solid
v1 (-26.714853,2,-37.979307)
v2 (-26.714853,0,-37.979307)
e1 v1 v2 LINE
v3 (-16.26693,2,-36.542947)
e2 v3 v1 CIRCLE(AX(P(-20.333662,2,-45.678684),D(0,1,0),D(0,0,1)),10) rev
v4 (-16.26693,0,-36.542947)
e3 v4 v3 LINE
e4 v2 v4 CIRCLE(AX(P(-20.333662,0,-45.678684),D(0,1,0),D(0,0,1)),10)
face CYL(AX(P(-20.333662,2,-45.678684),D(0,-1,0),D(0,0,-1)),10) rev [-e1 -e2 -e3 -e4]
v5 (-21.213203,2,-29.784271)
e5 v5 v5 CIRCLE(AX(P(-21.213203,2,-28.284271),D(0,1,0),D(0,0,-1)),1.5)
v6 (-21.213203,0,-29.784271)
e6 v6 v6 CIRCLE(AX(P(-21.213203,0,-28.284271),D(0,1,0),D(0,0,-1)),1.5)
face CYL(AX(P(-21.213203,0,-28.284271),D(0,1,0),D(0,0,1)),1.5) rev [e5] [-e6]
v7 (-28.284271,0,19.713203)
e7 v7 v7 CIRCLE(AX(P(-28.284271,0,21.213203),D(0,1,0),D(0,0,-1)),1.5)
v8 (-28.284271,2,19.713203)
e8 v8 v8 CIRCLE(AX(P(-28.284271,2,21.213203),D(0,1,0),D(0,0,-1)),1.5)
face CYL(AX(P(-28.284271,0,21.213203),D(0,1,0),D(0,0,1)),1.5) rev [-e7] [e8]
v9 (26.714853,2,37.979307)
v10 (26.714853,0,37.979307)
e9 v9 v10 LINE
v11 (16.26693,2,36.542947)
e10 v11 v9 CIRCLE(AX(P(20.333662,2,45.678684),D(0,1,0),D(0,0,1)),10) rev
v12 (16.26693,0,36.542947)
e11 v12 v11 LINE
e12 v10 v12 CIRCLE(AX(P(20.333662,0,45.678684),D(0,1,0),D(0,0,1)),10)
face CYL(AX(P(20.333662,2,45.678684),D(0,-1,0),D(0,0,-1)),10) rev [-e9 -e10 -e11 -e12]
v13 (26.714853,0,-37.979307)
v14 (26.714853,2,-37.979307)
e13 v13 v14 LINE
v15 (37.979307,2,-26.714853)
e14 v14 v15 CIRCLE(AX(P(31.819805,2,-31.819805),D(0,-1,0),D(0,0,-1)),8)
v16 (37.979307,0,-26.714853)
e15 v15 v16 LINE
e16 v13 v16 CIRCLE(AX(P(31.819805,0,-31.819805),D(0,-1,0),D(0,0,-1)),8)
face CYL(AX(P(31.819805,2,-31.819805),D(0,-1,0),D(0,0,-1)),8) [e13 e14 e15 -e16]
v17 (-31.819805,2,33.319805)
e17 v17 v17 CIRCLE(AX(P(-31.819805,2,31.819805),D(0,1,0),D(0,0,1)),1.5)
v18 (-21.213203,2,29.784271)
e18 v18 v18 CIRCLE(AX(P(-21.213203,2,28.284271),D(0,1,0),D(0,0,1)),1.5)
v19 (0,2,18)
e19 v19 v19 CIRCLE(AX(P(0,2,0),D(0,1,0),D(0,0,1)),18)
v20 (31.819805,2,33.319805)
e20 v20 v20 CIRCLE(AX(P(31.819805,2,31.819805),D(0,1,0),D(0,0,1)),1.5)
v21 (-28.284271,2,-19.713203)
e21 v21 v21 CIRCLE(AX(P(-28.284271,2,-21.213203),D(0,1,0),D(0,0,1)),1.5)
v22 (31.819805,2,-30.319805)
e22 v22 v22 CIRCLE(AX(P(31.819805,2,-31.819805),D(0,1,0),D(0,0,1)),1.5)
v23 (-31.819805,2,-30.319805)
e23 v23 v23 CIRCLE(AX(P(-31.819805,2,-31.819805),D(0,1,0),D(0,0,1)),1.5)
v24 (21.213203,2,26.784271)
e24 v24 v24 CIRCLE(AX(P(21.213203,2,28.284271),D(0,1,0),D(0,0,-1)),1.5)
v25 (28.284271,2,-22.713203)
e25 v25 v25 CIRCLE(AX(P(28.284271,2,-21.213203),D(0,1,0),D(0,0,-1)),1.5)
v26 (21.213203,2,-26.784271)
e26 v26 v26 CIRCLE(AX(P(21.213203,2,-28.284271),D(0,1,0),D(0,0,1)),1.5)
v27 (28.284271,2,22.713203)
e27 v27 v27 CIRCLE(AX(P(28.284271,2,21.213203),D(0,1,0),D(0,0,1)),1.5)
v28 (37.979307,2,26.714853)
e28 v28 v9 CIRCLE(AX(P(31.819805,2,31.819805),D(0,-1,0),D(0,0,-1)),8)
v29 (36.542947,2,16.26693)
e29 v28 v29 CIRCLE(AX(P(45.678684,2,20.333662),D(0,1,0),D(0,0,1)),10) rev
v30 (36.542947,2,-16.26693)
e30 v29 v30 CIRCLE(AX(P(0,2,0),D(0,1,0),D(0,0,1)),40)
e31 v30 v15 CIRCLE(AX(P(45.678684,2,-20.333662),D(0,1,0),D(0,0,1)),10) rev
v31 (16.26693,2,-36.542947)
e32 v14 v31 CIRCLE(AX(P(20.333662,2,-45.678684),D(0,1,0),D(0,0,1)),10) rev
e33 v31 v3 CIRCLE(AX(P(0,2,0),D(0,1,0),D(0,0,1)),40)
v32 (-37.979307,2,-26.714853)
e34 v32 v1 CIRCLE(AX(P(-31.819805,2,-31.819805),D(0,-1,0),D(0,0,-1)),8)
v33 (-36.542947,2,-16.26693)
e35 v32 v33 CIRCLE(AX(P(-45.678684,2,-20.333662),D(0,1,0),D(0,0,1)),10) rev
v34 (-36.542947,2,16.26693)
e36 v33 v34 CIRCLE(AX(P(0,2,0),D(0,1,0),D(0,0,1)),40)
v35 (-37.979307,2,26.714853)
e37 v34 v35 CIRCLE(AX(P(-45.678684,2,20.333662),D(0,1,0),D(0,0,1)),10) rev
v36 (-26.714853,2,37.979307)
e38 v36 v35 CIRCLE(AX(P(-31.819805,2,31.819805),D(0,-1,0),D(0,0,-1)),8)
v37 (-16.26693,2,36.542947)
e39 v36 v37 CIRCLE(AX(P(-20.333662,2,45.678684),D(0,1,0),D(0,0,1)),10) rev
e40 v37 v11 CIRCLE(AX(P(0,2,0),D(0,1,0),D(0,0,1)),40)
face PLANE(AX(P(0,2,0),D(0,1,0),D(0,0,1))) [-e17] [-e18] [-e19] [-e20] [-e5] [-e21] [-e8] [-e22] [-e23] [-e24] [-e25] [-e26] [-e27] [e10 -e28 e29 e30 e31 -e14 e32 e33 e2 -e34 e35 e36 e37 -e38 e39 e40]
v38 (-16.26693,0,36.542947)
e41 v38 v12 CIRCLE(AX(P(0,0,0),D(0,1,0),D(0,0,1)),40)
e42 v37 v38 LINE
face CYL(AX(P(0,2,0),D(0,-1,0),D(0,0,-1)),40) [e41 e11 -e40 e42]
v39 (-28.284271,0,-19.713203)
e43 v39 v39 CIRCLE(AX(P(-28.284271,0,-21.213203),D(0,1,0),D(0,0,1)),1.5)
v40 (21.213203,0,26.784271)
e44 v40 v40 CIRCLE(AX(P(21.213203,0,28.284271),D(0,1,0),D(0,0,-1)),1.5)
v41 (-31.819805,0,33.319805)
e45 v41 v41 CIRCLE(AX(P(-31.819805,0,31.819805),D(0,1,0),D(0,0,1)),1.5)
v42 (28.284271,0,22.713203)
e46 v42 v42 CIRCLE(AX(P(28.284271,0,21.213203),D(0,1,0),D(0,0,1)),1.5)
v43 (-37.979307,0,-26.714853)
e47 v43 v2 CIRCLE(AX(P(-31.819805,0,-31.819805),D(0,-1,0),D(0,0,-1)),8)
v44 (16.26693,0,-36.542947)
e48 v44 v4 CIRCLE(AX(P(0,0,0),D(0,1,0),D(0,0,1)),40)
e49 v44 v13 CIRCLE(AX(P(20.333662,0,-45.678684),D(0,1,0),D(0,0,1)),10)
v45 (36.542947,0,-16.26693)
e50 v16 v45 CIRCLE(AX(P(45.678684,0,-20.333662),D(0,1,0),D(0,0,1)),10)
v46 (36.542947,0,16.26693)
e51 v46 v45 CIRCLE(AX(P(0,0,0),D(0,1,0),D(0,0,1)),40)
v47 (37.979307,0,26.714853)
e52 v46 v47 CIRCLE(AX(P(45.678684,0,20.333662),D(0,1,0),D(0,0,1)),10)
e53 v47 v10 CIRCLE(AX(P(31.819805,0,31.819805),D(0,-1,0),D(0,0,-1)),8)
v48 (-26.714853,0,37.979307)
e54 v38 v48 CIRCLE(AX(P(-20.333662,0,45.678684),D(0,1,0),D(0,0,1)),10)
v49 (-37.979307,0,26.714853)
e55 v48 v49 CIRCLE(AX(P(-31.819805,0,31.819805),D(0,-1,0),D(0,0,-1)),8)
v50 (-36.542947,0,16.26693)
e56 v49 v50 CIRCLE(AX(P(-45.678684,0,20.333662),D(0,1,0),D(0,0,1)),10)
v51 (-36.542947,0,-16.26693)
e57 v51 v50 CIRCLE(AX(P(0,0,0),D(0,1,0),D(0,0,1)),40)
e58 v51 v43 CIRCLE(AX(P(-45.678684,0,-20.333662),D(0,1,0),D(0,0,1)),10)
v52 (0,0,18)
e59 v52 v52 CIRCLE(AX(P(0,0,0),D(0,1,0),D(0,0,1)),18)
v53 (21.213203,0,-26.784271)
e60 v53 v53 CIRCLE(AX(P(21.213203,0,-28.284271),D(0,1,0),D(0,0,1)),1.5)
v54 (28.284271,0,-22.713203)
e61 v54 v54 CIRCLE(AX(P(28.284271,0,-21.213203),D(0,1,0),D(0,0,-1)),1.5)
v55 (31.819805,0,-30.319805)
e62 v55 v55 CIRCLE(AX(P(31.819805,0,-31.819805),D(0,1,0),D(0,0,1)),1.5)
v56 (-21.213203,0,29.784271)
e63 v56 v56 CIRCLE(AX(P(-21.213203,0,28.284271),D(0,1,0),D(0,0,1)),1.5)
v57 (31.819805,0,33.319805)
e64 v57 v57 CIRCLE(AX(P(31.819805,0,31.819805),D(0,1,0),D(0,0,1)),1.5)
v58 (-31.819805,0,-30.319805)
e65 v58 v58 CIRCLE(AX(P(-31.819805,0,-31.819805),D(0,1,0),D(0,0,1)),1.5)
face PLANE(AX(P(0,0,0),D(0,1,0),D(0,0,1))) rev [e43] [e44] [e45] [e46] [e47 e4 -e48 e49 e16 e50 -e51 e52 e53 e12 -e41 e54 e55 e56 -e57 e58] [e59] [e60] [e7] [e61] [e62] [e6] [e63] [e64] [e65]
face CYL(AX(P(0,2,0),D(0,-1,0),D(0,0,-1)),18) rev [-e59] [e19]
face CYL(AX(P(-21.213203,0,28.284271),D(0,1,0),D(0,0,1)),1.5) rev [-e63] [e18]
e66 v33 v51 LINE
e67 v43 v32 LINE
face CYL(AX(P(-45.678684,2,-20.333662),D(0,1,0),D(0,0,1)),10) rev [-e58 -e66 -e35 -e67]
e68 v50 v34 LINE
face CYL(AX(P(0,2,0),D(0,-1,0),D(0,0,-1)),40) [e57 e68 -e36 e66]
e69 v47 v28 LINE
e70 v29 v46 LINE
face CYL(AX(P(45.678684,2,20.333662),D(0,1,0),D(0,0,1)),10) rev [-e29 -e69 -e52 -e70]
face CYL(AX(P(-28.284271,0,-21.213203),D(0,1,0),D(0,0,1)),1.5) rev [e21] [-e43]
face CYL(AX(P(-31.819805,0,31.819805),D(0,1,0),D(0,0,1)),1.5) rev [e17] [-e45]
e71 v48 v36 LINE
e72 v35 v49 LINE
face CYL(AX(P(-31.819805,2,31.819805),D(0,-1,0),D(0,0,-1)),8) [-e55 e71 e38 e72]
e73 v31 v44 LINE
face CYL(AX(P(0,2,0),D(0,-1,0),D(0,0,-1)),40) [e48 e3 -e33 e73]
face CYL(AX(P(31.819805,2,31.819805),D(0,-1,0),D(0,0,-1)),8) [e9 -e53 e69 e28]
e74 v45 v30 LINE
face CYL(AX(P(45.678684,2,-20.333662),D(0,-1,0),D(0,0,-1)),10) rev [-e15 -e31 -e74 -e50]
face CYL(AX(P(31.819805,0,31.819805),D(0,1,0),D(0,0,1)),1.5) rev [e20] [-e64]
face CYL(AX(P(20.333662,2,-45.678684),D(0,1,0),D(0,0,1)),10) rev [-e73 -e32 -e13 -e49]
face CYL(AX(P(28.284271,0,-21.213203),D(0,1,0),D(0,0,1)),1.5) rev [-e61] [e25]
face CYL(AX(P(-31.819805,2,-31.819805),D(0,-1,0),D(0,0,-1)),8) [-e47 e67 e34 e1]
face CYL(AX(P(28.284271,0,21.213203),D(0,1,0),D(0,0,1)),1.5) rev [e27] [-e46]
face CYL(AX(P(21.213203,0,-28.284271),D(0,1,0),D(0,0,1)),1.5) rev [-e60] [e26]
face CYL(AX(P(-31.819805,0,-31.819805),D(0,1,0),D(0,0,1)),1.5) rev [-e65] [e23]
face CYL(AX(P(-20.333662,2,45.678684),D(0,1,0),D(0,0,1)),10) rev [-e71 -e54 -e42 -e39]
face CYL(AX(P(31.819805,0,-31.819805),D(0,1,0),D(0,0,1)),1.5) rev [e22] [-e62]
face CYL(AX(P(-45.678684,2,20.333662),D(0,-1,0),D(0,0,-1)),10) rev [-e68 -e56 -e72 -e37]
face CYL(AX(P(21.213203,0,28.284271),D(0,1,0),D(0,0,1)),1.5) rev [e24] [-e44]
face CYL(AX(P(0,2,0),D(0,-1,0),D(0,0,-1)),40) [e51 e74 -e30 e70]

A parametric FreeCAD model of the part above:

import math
import FreeCAD as App
import Part
import Sketcher
from FreeCAD import Vector
Q = App.Units.Quantity


def edges_at(feature, points):
    """Names of the edges that pass closest to the given points."""
    edges = feature.Shape.Edges
    near = lambda p: min(range(len(edges)), key=lambda i: edges[i].distToShape(Part.Vertex(*p))[0])
    return sorted({f"Edge{near(p) + 1}" for p in points})

doc = App.newDocument("Part")
params = doc.addObject("Spreadsheet::Sheet", "Params")
for row, (alias, value) in enumerate([
    ("sketch1_diameter", "80 mm"),
    ("sketch1_diameter2", "36 mm"),
    ("pad1_length", "2 mm"),
    ("sketch2_radius", "8 mm"),
    ("sketch2_length", "10 mm"),
    ("pad2_length", "2 mm"),
    ("fillet_radius", "10 mm"),
    ("sketch3_diameter", "3 mm"),
], start=1):
    params.set(f"A{row}", alias)
    params.set(f"B{row}", "=" + value)
    params.setAlias(f"B{row}", alias)

body = doc.addObject("PartDesign::Body", "Body")

# Sketch on XZ plane
sketch1 = doc.addObject("Sketcher::SketchObject", "Sketch")
body.addObject(sketch1)
sketch1.AttachmentSupport = (doc.XZ_Plane, [""])
sketch1.MapMode = "FlatFace"
sketch1.addGeometry(Part.Circle(Vector(0, 0, 0), Vector(0, 0, 1), 40), False)
sketch1.addGeometry(Part.Circle(Vector(0, 0, 0), Vector(0, 0, 1), 18), False)
sketch1.addConstraint(Sketcher.Constraint("Coincident", 0, 3, -1, 1))
sketch1.addConstraint(Sketcher.Constraint("Coincident", 1, 3, -1, 1))
sketch1.addConstraint(Sketcher.Constraint("Diameter", 0, Q("80 mm")))
sketch1.addConstraint(Sketcher.Constraint("Diameter", 1, Q("36 mm")))
sketch1.setExpression("Constraints[2]", "Params.sketch1_diameter")
sketch1.setExpression("Constraints[3]", "Params.sketch1_diameter2")
pad1 = doc.addObject("PartDesign::Pad", "Pad")
body.addObject(pad1)
pad1.Profile = sketch1
pad1.setExpression("Length", "Params.pad1_length")
pad1.Reversed = True

# Sketch on XZ plane
sketch2 = doc.addObject("Sketcher::SketchObject", "Sketch001")
body.addObject(sketch2)
sketch2.AttachmentSupport = (doc.XZ_Plane, [""])
sketch2.MapMode = "FlatFace"
sketch2.addGeometry(Part.LineSegment(Vector(26, 37, 0), Vector(19, 30, 0)), False)
sketch2.addGeometry(Part.ArcOfCircle(Part.Circle(Vector(25, 25, 0), Vector(0, 0, 1), 8), math.radians(135), math.radians(315)), False)
sketch2.addGeometry(Part.LineSegment(Vector(30, 19, 0), Vector(37, 26, 0)), False)
sketch2.addGeometry(Part.ArcOfCircle(Part.Circle(Vector(32, 32, 0), Vector(0, 0, 1), 8), math.radians(-45), math.radians(135)), False)
sketch2.addGeometry(Part.LineSegment(Vector(19, -30, 0), Vector(26, -37, 0)), False)
sketch2.addGeometry(Part.ArcOfCircle(Part.Circle(Vector(32, -32, 0), Vector(0, 0, 1), 8), math.radians(-135), math.radians(45)), False)
sketch2.addGeometry(Part.LineSegment(Vector(37, -26, 0), Vector(30, -19, 0)), False)
sketch2.addGeometry(Part.ArcOfCircle(Part.Circle(Vector(25, -25, 0), Vector(0, 0, 1), 8), math.radians(45), math.radians(225)), False)
sketch2.addGeometry(Part.LineSegment(Vector(-30, -19, 0), Vector(-37, -26, 0)), False)
sketch2.addGeometry(Part.ArcOfCircle(Part.Circle(Vector(-32, -32, 0), Vector(0, 0, 1), 8), math.radians(135), math.radians(315)), False)
sketch2.addGeometry(Part.LineSegment(Vector(-26, -37, 0), Vector(-19, -30, 0)), False)
sketch2.addGeometry(Part.ArcOfCircle(Part.Circle(Vector(-25, -25, 0), Vector(0, 0, 1), 8), math.radians(-45), math.radians(135)), False)
sketch2.addGeometry(Part.LineSegment(Vector(-19, 30, 0), Vector(-26, 37, 0)), False)
sketch2.addGeometry(Part.ArcOfCircle(Part.Circle(Vector(-32, 32, 0), Vector(0, 0, 1), 8), math.radians(45), math.radians(225)), False)
sketch2.addGeometry(Part.LineSegment(Vector(-37, 26, 0), Vector(-30, 19, 0)), False)
sketch2.addGeometry(Part.ArcOfCircle(Part.Circle(Vector(-25, 25, 0), Vector(0, 0, 1), 8), math.radians(-135), math.radians(45)), False)
sketch2.addConstraint(Sketcher.Constraint("Tangent", 0, 2, 1, 1))
sketch2.addConstraint(Sketcher.Constraint("Tangent", 1, 2, 2, 1))
sketch2.addConstraint(Sketcher.Constraint("Tangent", 2, 2, 3, 1))
sketch2.addConstraint(Sketcher.Constraint("Tangent", 3, 2, 0, 1))
sketch2.addConstraint(Sketcher.Constraint("Tangent", 4, 2, 5, 1))
sketch2.addConstraint(Sketcher.Constraint("Tangent", 5, 2, 6, 1))
sketch2.addConstraint(Sketcher.Constraint("Tangent", 6, 2, 7, 1))
sketch2.addConstraint(Sketcher.Constraint("Tangent", 7, 2, 4, 1))
sketch2.addConstraint(Sketcher.Constraint("Tangent", 8, 2, 9, 1))
sketch2.addConstraint(Sketcher.Constraint("Tangent", 9, 2, 10, 1))
sketch2.addConstraint(Sketcher.Constraint("Tangent", 10, 2, 11, 1))
sketch2.addConstraint(Sketcher.Constraint("Tangent", 11, 2, 8, 1))
sketch2.addConstraint(Sketcher.Constraint("Tangent", 12, 2, 13, 1))
sketch2.addConstraint(Sketcher.Constraint("Tangent", 13, 2, 14, 1))
sketch2.addConstraint(Sketcher.Constraint("Tangent", 14, 2, 15, 1))
sketch2.addConstraint(Sketcher.Constraint("Tangent", 15, 2, 12, 1))
sketch2.addConstraint(Sketcher.Constraint("Equal", 1, 3))
sketch2.addConstraint(Sketcher.Constraint("Equal", 3, 5))
sketch2.addConstraint(Sketcher.Constraint("Equal", 5, 7))
sketch2.addConstraint(Sketcher.Constraint("Equal", 7, 9))
sketch2.addConstraint(Sketcher.Constraint("Equal", 9, 11))
sketch2.addConstraint(Sketcher.Constraint("Equal", 11, 13))
sketch2.addConstraint(Sketcher.Constraint("Equal", 13, 15))
sketch2.addConstraint(Sketcher.Constraint("Symmetric", 3, 3, 9, 3, -1, 1))
sketch2.addConstraint(Sketcher.Constraint("Symmetric", 1, 3, 11, 3, -1, 1))
sketch2.addConstraint(Sketcher.Constraint("Symmetric", 5, 3, 13, 3, -1, 1))
sketch2.addConstraint(Sketcher.Constraint("Symmetric", 7, 3, 15, 3, -1, 1))
sketch2.addConstraint(Sketcher.Constraint("Symmetric", 5, 3, 9, 3, -2))
sketch2.addConstraint(Sketcher.Constraint("Symmetric", 7, 3, 11, 3, -2))
sketch2.addConstraint(Sketcher.Constraint("Perpendicular", 2, 4))
sketch2.addConstraint(Sketcher.Constraint("Radius", 1, Q("8 mm")))
sketch2.addConstraint(Sketcher.Constraint("Distance", 0, Q("10 mm")))
sketch2.addConstraint(Sketcher.Constraint("DistanceY", 5, 2, 2, 2, Q("52.325902 mm")))
sketch2.addConstraint(Sketcher.Constraint("DistanceX", 9, 2, 4, 2, Q("52.325902 mm")))
sketch2.setExpression("Constraints[30]", "Params.sketch2_radius")
sketch2.setExpression("Constraints[31]", "Params.sketch2_length")
pad2 = doc.addObject("PartDesign::Pad", "Pad001")
body.addObject(pad2)
pad2.Profile = sketch2
pad2.setExpression("Length", "Params.pad2_length")
pad2.Reversed = True
doc.recompute()

fillet = doc.addObject("PartDesign::Fillet", "Fillet")
body.addObject(fillet)
fillet.Base = (pad2, edges_at(pad2, [
    (-22.056, 1, -33.37),
    (-33.37, 1, -22.056),
    (-33.37, 1, 22.056),
    (-22.056, 1, 33.37),
    (22.056, 1, 33.37),
    (33.37, 1, 22.056),
    (33.37, 1, -22.056),
    (22.056, 1, -33.37),
]))
fillet.setExpression("Radius", "Params.fillet_radius")

# Sketch on XZ plane
sketch3 = doc.addObject("Sketcher::SketchObject", "Sketch002")
body.addObject(sketch3)
sketch3.AttachmentSupport = (doc.XZ_Plane, [""])
sketch3.MapMode = "FlatFace"
sketch3.AttachmentOffset = App.Placement(Vector(0, 0, -2), App.Rotation())
sketch3.addGeometry(Part.Circle(Vector(-21.2, 28.3, 0), Vector(0, 0, 1), 1.5), False)
sketch3.addGeometry(Part.Circle(Vector(-31.8, 31.8, 0), Vector(0, 0, 1), 1.5), False)
sketch3.addGeometry(Part.Circle(Vector(-28.3, 21.2, 0), Vector(0, 0, 1), 1.5), False)
sketch3.addGeometry(Part.Circle(Vector(-31.8, -31.8, 0), Vector(0, 0, 1), 1.5), False)
sketch3.addGeometry(Part.Circle(Vector(-21.2, -28.3, 0), Vector(0, 0, 1), 1.5), False)
sketch3.addGeometry(Part.Circle(Vector(-28.3, -21.2, 0), Vector(0, 0, 1), 1.5), False)
sketch3.addGeometry(Part.Circle(Vector(31.8, -31.8, 0), Vector(0, 0, 1), 1.5), False)
sketch3.addGeometry(Part.Circle(Vector(28.3, -21.2, 0), Vector(0, 0, 1), 1.5), False)
sketch3.addGeometry(Part.Circle(Vector(21.2, -28.3, 0), Vector(0, 0, 1), 1.5), False)
sketch3.addGeometry(Part.Circle(Vector(31.8, 31.8, 0), Vector(0, 0, 1), 1.5), False)
sketch3.addGeometry(Part.Circle(Vector(21.2, 28.3, 0), Vector(0, 0, 1), 1.5), False)
sketch3.addGeometry(Part.Circle(Vector(28.3, 21.2, 0), Vector(0, 0, 1), 1.5), False)
sketch3.addConstraint(Sketcher.Constraint("Equal", 0, 1))
sketch3.addConstraint(Sketcher.Constraint("Equal", 1, 2))
sketch3.addConstraint(Sketcher.Constraint("Equal", 2, 3))
sketch3.addConstraint(Sketcher.Constraint("Equal", 3, 4))
sketch3.addConstraint(Sketcher.Constraint("Equal", 4, 5))
sketch3.addConstraint(Sketcher.Constraint("Equal", 5, 6))
sketch3.addConstraint(Sketcher.Constraint("Equal", 6, 7))
sketch3.addConstraint(Sketcher.Constraint("Equal", 7, 8))
sketch3.addConstraint(Sketcher.Constraint("Equal", 8, 9))
sketch3.addConstraint(Sketcher.Constraint("Equal", 9, 10))
sketch3.addConstraint(Sketcher.Constraint("Equal", 10, 11))
sketch3.addConstraint(Sketcher.Constraint("Symmetric", 1, 3, 6, 3, -1, 1))
sketch3.addConstraint(Sketcher.Constraint("Symmetric", 2, 3, 7, 3, -1, 1))
sketch3.addConstraint(Sketcher.Constraint("Symmetric", 0, 3, 8, 3, -1, 1))
sketch3.addConstraint(Sketcher.Constraint("Symmetric", 3, 3, 9, 3, -1, 1))
sketch3.addConstraint(Sketcher.Constraint("Symmetric", 4, 3, 10, 3, -1, 1))
sketch3.addConstraint(Sketcher.Constraint("Symmetric", 5, 3, 11, 3, -1, 1))
sketch3.addConstraint(Sketcher.Constraint("Symmetric", 3, 3, 6, 3, -2))
sketch3.addConstraint(Sketcher.Constraint("Symmetric", 5, 3, 7, 3, -2))
sketch3.addConstraint(Sketcher.Constraint("Symmetric", 4, 3, 8, 3, -2))
sketch3.addConstraint(Sketcher.Constraint("Diameter", 0, Q("3 mm")))
sketch3.addConstraint(Sketcher.Constraint("DistanceX", 1, 3, 0, 3, Q("10.606602 mm")))
sketch3.addConstraint(Sketcher.Constraint("DistanceY", 2, 3, 1, 3, Q("10.606602 mm")))
sketch3.addConstraint(Sketcher.Constraint("DistanceY", -1, 1, 0, 3, Q("28.284271 mm")))
sketch3.addConstraint(Sketcher.Constraint("DistanceX", 2, 3, -1, 1, Q("28.284271 mm")))
sketch3.addConstraint(Sketcher.Constraint("DistanceY", 3, 3, 2, 3, Q("53.033009 mm")))
sketch3.addConstraint(Sketcher.Constraint("DistanceX", 4, 3, 6, 3, Q("53.033009 mm")))
sketch3.setExpression("Constraints[20]", "Params.sketch3_diameter")
pocket1 = doc.addObject("PartDesign::Pocket", "Pocket")
body.addObject(pocket1)
pocket1.Profile = sketch3
pocket1.Type = "ThroughAll"
pocket1.Reversed = True

doc.recompute()
